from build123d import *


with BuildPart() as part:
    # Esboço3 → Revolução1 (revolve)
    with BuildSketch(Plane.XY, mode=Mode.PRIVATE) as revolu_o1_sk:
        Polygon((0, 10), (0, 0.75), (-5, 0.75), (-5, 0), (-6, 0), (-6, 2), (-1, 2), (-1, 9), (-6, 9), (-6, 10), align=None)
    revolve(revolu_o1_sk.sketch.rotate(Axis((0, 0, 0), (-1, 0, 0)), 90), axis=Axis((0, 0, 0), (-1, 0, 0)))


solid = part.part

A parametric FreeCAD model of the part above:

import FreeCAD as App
import Part
import Sketcher
from FreeCAD import Vector


def add_polygon(sketch, points):
    """Adds a closed chain of lines whose ends are joined by coincident constraints."""
    first, n = sketch.GeometryCount, len(points)
    for a, b in zip(points, points[1:] + points[:1]):
        sketch.addGeometry(Part.LineSegment(App.Vector(*a, 0), App.Vector(*b, 0)), False)
    for i in range(n):
        sketch.addConstraint(Sketcher.Constraint("Coincident", first + i, 2, first + (i + 1) % n, 1))

doc = App.newDocument("Part")
params = doc.addObject("Spreadsheet::Sheet", "Params")
for row, (alias, value) in enumerate([
    ("sketch1_width", "6 mm"),
    ("sketch1_width2", "5 mm"),
    ("sketch1_height", "7 mm"),
    ("sketch1_height2", "2 mm"),
    ("sketch1_height3", "9.25 mm"),
    ("revolution_angle", "360 deg"),
], start=1):
    params.set(f"A{row}", alias)
    params.set(f"B{row}", "=" + value)
    params.setAlias(f"B{row}", alias)

body = doc.addObject("PartDesign::Body", "Body")

# Sketch on XY plane
sketch1 = body.newObject("Sketcher::SketchObject", "Sketch")
sketch1.AttachmentSupport = (doc.getObject("XY_Plane"), [""])
sketch1.MapMode = "FlatFace"
add_polygon(sketch1, [(0, 0.8), (0, 10), (-6, 10), (-6, 9), (-1, 9), (-1, 2), (-6, 2), (-6, 0), (-5, 0), (-5, 0.8)])  # lines 0-9
sketch1.addConstraint([
    Sketcher.Constraint("Vertical", 0),
    Sketcher.Constraint("Horizontal", 1),
    Sketcher.Constraint("Vertical", 2),
    Sketcher.Constraint("Horizontal", 3),
    Sketcher.Constraint("Vertical", 4),
    Sketcher.Constraint("Horizontal", 5),
    Sketcher.Constraint("Vertical", 6),
    Sketcher.Constraint("Horizontal", 7),
    Sketcher.Constraint("Vertical", 8),
    Sketcher.Constraint("Horizontal", 9),
    Sketcher.Constraint("PointOnObject", 0, 2, -2),
    Sketcher.Constraint("PointOnObject", 6, 2, -1),
    Sketcher.Constraint("Vertical", 2, 2, 5, 2),
    Sketcher.Constraint("Equal", 5, 9),
    Sketcher.Constraint("Equal", 7, 2),
    Sketcher.Constraint("DistanceX", 1, 2, 1, 1, 6.0),
    Sketcher.Constraint("DistanceX", 3, 1, 3, 2, 5.0),
    Sketcher.Constraint("DistanceY", 4, 2, 4, 1, 7.0),
    Sketcher.Constraint("DistanceY", 6, 2, 6, 1, 2.0),
    Sketcher.Constraint("DistanceY", 0, 1, 0, 2, 9.25),
])
sketch1.setExpression("Constraints[25]", "Params.sketch1_width")
sketch1.setExpression("Constraints[26]", "Params.sketch1_width2")
sketch1.setExpression("Constraints[27]", "Params.sketch1_height")
sketch1.setExpression("Constraints[28]", "Params.sketch1_height2")
sketch1.setExpression("Constraints[29]", "Params.sketch1_height3")
revolution = body.newObject("PartDesign::Revolution", "Revolution")
revolution.Profile = sketch1
revolution.ReferenceAxis = (sketch1, ["H_Axis"])
revolution.setExpression("Angle", "Params.revolution_angle")

doc.recompute()
